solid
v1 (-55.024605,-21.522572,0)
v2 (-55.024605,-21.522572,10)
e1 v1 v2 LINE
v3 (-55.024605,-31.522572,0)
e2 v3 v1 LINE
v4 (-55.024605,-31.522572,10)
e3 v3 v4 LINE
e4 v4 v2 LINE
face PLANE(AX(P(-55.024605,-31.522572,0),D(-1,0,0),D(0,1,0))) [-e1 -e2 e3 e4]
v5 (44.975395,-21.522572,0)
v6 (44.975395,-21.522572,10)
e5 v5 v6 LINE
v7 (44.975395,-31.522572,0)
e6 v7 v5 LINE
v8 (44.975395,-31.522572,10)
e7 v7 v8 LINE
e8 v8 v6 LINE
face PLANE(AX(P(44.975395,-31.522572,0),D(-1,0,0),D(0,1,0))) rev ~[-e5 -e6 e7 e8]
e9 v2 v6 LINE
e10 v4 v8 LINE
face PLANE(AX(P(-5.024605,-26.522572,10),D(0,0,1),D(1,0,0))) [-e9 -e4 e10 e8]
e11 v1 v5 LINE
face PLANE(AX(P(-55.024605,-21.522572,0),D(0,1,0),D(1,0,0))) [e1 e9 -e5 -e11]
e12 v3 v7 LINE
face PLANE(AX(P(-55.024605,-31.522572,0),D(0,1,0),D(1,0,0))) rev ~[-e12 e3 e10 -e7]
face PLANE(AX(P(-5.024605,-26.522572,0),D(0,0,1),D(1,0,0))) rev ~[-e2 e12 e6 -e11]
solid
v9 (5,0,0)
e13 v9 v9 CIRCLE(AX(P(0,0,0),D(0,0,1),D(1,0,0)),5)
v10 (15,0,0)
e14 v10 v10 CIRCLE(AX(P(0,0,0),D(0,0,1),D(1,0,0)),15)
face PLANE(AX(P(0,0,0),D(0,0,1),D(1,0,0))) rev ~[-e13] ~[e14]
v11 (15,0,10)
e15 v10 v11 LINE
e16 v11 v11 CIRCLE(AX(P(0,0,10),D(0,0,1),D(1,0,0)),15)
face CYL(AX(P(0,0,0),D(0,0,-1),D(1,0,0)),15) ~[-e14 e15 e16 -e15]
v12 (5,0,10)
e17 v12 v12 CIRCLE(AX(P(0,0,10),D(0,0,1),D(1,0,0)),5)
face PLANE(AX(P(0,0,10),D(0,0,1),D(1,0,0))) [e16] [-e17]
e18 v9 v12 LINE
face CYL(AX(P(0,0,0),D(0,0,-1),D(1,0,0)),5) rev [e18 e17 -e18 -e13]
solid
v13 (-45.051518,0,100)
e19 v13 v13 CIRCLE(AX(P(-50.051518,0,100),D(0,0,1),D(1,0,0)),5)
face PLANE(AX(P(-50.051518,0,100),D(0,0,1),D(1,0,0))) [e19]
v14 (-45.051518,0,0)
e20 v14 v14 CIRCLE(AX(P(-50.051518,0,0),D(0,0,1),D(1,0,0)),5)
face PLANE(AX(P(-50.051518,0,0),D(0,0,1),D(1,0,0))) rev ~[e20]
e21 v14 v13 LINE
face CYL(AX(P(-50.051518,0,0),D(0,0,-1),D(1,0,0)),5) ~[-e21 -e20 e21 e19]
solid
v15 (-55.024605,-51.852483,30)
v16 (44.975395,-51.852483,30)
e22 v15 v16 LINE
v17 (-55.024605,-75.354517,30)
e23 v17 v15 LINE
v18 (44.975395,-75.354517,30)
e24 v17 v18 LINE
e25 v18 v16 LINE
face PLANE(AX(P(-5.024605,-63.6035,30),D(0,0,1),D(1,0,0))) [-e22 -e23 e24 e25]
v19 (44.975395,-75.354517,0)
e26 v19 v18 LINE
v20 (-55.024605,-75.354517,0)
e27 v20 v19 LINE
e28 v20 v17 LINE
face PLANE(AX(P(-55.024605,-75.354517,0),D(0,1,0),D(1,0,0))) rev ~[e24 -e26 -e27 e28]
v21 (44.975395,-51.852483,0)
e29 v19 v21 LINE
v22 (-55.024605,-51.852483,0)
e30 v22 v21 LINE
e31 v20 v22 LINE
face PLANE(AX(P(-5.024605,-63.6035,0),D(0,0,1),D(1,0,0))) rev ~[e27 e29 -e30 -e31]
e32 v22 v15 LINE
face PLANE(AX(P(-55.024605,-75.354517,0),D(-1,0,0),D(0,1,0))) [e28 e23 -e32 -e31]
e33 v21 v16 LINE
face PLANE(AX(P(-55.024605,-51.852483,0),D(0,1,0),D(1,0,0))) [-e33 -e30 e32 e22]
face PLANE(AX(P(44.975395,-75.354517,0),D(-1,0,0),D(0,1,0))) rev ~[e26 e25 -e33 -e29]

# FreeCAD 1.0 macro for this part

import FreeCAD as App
import Part
import Sketcher
from FreeCAD import Vector


def add_polygon(sketch, points):
    """Adds a closed chain of lines whose ends are joined by coincident constraints."""
    first, n = sketch.GeometryCount, len(points)
    for a, b in zip(points, points[1:] + points[:1]):
        sketch.addGeometry(Part.LineSegment(App.Vector(*a, 0), App.Vector(*b, 0)), False)
    for i in range(n):
        sketch.addConstraint(Sketcher.Constraint("Coincident", first + i, 2, first + (i + 1) % n, 1))

doc = App.newDocument("Part")
body = doc.addObject("PartDesign::Body", "Body")
body.AllowCompound = True

sketch1 = body.newObject("Sketcher::SketchObject", "Sketch")
sketch1.AttachmentSupport = (doc.getObject("XY_Plane"), [""])
sketch1.MapMode = "FlatFace"
sketch1.addGeometry(Part.Circle(Vector(0, 0, 0), Vector(0, 0, 1), 15), False)
sketch1.addGeometry(Part.Circle(Vector(0, 0, 0), Vector(0, 0, 1), 5), False)
add_polygon(sketch1, [(-55.024605, -21.522572), (-55.024605, -31.522572), (44.975395, -31.522572), (44.975395, -21.522572)])
sketch1.addConstraint(Sketcher.Constraint("Vertical", 2))
sketch1.addConstraint(Sketcher.Constraint("Horizontal", 3))
sketch1.addConstraint(Sketcher.Constraint("Vertical", 4))
sketch1.addConstraint(Sketcher.Constraint("Horizontal", 5))
sketch1.addConstraint(Sketcher.Constraint("Coincident", 0, 3, -1, 1))
sketch1.addConstraint(Sketcher.Constraint("Coincident", 1, 3, -1, 1))
sketch1.addConstraint(Sketcher.Constraint("Diameter", 0, 30.0))
sketch1.addConstraint(Sketcher.Constraint("Diameter", 1, 10.0))
sketch1.addConstraint(Sketcher.Constraint("DistanceX", 3, 1, 3, 2, 100.0))
sketch1.addConstraint(Sketcher.Constraint("DistanceY", 2, 2, 2, 1, 10.0))
sketch1.addConstraint(Sketcher.Constraint("DistanceY", 2, 2, -1, 1, 31.522572))
sketch1.addConstraint(Sketcher.Constraint("DistanceX", 2, 2, -1, 1, 55.024605))
pad1 = body.newObject("PartDesign::Pad", "Pad")
pad1.Profile = sketch1
pad1.Length = 10
body2 = doc.addObject("PartDesign::Body", "Body001")

sketch2 = body2.newObject("Sketcher::SketchObject", "Sketch001")
sketch2.AttachmentSupport = (doc.getObject("XY_Plane001"), [""])
sketch2.MapMode = "FlatFace"
sketch2.addGeometry(Part.Circle(Vector(-50.051518, 0, 0), Vector(0, 0, 1), 5), False)
sketch2.addConstraint(Sketcher.Constraint("PointOnObject", 0, 3, -1))
sketch2.addConstraint(Sketcher.Constraint("Diameter", 0, 10.0))
sketch2.addConstraint(Sketcher.Constraint("DistanceX", 0, 3, -1, 1, 50.051518))
pad2 = body2.newObject("PartDesign::Pad", "Pad001")
pad2.Profile = sketch2
pad2.Length = 100
body3 = doc.addObject("PartDesign::Body", "Body002")

sketch3 = body3.newObject("Sketcher::SketchObject", "Sketch002")
sketch3.AttachmentSupport = (doc.getObject("XY_Plane002"), [""])
sketch3.MapMode = "FlatFace"
add_polygon(sketch3, [(-55.024605, -51.852483), (-55.024605, -75.354517), (44.975395, -75.354517), (44.975395, -51.852483)])
sketch3.addConstraint(Sketcher.Constraint("Vertical", 0))
sketch3.addConstraint(Sketcher.Constraint("Horizontal", 1))
sketch3.addConstraint(Sketcher.Constraint("Vertical", 2))
sketch3.addConstraint(Sketcher.Constraint("Horizontal", 3))
sketch3.addConstraint(Sketcher.Constraint("DistanceX", 1, 1, 1, 2, 100.0))
sketch3.addConstraint(Sketcher.Constraint("DistanceY", 0, 2, 0, 1, 23.502034))
sketch3.addConstraint(Sketcher.Constraint("DistanceX", 0, 2, -1, 1, 55.024605))
sketch3.addConstraint(Sketcher.Constraint("DistanceY", 0, 2, -1, 1, 75.354517))
pad3 = body3.newObject("PartDesign::Pad", "Pad002")
pad3.Profile = sketch3
pad3.Length = 30

doc.recompute()
